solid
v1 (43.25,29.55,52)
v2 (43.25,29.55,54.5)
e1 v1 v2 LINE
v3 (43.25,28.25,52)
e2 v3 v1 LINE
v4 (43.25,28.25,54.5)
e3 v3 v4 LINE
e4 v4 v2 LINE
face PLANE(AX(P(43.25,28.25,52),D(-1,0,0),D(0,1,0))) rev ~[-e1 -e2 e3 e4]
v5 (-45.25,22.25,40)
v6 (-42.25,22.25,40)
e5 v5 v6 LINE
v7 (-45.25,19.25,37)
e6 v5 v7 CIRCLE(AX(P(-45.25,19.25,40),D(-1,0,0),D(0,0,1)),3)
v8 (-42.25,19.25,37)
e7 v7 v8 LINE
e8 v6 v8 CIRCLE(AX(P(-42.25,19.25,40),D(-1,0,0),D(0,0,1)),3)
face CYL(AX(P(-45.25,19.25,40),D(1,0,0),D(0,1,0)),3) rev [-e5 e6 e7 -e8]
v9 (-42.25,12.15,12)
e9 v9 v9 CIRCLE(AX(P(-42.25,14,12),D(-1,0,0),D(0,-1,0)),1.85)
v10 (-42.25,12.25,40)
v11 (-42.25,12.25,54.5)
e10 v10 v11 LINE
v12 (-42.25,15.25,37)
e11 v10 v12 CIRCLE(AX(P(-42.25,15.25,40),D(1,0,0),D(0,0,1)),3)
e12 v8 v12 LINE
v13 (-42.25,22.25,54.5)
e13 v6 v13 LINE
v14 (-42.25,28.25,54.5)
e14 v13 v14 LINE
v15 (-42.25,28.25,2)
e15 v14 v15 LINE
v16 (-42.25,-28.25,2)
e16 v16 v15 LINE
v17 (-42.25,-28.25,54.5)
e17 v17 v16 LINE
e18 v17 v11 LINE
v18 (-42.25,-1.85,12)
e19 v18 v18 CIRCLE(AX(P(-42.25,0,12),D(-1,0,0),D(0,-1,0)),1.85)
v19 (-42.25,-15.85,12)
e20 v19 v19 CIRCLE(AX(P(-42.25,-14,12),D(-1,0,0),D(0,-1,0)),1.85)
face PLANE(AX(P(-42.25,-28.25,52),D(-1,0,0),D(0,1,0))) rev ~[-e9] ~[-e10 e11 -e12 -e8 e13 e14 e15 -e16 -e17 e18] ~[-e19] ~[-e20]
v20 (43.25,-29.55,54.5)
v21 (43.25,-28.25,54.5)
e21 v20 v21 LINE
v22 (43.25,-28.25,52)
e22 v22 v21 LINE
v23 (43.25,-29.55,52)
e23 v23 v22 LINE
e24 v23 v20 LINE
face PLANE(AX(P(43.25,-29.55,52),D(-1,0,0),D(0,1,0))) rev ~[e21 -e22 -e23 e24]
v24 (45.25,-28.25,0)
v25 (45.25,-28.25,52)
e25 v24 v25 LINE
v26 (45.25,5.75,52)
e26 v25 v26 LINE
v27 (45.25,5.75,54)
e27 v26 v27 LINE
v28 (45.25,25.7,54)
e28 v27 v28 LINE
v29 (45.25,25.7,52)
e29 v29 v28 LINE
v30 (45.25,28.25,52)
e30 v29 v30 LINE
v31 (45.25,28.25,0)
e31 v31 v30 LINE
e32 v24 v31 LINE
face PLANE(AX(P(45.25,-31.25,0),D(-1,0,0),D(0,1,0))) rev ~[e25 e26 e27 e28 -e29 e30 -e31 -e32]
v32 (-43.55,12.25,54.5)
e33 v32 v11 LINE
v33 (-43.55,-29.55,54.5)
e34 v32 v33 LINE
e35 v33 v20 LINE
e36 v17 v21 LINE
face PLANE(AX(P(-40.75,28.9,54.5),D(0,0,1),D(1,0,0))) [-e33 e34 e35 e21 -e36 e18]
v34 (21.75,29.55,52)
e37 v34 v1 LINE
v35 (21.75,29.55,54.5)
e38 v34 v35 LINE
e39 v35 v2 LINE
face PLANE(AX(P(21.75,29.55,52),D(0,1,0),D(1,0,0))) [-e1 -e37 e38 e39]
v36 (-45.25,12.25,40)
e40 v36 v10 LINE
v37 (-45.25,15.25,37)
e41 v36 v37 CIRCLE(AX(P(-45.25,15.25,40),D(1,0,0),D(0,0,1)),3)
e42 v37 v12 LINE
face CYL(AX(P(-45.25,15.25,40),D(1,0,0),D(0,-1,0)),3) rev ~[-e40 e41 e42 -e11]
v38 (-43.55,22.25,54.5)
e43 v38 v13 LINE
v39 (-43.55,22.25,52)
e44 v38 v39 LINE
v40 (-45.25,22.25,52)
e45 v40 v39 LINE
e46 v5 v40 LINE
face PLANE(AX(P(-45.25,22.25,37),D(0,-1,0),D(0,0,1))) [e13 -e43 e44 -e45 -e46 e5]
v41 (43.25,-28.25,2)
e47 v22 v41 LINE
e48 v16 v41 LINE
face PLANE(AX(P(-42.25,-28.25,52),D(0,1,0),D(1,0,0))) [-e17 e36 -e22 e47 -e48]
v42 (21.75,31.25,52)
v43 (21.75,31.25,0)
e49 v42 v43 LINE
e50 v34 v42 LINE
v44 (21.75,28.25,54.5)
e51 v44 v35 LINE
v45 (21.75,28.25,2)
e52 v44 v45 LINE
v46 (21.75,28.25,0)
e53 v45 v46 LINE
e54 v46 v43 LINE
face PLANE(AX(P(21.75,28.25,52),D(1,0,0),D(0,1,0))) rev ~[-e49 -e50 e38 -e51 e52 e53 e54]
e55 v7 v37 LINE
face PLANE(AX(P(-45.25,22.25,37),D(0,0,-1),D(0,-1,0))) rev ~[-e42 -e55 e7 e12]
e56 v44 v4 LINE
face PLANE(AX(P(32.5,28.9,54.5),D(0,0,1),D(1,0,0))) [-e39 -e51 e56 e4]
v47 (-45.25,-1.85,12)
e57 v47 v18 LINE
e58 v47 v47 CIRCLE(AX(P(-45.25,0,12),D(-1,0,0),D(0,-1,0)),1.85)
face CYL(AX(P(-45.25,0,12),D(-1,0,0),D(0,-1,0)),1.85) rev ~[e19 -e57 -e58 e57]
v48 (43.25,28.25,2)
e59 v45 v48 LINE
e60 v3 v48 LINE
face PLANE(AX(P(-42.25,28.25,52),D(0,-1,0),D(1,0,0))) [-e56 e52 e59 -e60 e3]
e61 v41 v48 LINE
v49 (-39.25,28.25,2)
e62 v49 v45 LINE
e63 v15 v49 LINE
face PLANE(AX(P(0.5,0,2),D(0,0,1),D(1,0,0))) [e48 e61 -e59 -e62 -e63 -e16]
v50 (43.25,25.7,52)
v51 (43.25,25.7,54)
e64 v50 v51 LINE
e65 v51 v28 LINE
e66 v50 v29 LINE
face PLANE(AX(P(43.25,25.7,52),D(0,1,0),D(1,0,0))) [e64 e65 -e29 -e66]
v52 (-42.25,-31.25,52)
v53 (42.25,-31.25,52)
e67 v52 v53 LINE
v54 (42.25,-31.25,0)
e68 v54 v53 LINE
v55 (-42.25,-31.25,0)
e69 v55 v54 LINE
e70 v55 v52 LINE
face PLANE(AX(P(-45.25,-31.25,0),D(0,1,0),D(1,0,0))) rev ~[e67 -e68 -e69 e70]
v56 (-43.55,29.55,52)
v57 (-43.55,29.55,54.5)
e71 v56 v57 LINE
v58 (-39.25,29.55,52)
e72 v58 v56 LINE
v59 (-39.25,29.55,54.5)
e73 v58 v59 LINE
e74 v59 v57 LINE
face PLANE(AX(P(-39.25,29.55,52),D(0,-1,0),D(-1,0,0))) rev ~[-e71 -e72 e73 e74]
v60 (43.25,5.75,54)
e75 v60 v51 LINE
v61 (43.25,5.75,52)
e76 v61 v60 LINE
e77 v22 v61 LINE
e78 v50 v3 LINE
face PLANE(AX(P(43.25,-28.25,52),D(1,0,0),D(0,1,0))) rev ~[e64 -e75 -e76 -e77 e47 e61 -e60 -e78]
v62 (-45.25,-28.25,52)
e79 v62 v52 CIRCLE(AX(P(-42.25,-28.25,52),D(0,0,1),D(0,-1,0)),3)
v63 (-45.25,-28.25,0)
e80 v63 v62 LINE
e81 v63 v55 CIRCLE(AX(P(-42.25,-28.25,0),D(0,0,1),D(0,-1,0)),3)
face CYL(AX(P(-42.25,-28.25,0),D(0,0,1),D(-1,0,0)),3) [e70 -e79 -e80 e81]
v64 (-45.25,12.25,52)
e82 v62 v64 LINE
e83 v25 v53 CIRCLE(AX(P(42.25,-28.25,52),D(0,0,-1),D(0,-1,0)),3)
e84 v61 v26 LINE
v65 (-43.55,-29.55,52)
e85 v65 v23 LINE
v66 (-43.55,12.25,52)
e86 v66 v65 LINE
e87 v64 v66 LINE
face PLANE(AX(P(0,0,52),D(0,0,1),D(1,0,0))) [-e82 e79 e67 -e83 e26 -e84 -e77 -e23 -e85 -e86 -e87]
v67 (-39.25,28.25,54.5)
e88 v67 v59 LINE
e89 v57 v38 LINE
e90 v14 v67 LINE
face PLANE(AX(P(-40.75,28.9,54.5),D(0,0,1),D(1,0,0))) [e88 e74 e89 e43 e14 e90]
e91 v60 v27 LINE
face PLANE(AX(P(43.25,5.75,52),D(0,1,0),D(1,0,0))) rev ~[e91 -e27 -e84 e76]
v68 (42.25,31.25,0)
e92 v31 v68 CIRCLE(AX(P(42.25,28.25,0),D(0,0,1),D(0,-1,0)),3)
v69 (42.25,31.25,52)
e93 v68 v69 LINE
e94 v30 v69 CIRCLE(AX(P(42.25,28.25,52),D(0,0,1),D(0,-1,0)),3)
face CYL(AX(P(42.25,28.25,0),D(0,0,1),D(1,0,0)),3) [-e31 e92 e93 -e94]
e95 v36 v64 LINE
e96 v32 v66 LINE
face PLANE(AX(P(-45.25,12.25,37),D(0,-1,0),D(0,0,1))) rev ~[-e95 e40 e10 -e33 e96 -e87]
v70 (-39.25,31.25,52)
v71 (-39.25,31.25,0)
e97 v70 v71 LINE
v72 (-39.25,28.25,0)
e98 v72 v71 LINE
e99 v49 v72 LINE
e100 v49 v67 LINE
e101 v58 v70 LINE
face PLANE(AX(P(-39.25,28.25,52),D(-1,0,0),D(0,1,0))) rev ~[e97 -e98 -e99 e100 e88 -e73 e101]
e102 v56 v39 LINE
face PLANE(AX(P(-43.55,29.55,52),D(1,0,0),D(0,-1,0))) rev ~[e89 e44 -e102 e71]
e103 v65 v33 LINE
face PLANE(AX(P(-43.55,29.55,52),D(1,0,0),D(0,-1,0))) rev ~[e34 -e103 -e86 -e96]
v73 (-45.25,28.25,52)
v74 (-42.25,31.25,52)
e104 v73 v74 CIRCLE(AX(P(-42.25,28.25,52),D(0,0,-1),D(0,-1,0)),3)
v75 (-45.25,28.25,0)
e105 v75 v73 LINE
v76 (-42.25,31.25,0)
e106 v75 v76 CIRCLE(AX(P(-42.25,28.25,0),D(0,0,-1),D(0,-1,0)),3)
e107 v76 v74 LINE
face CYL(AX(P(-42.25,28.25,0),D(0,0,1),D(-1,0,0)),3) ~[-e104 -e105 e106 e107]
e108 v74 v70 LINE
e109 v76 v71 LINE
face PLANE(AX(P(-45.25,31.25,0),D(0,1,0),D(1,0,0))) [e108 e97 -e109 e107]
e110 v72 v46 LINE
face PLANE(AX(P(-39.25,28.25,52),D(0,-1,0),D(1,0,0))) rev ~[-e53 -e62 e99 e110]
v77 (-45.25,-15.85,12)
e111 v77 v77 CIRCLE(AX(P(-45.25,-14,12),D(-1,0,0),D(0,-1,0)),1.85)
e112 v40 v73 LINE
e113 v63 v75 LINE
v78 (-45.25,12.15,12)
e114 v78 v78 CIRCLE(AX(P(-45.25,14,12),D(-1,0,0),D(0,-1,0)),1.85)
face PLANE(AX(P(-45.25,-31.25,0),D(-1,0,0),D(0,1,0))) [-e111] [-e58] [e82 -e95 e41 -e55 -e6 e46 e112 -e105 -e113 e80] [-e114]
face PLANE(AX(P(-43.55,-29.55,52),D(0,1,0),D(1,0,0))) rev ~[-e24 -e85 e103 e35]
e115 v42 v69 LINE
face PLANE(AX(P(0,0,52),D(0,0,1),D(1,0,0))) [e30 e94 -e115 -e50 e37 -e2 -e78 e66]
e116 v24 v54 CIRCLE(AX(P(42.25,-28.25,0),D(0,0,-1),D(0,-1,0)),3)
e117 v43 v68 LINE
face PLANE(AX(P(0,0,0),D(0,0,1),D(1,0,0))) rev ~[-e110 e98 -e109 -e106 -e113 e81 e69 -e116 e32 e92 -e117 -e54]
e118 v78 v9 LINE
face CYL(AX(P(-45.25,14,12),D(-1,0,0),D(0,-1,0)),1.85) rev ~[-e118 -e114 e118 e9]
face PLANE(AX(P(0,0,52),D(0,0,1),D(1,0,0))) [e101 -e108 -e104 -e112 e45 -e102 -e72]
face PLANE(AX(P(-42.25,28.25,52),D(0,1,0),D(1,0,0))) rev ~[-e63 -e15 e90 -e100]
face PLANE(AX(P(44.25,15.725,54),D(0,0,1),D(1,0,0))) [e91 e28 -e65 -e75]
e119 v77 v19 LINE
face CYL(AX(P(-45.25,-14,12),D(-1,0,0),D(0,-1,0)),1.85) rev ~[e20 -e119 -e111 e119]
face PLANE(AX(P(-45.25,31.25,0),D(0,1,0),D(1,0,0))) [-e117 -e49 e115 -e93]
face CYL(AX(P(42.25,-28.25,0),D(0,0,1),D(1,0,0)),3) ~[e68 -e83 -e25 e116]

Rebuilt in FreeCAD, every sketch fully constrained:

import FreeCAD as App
import Part
import Sketcher
from FreeCAD import Vector
Q = App.Units.Quantity


def edges_at(feature, points):
    """Names of the edges that pass closest to the given points."""
    edges = feature.Shape.Edges
    near = lambda p: min(range(len(edges)), key=lambda i: edges[i].distToShape(Part.Vertex(*p))[0])
    return sorted({f"Edge{near(p) + 1}" for p in points})

doc = App.newDocument("Part")
body = doc.addObject("PartDesign::Body", "Body")

# Sketch on XY plane
sketch1 = body.newObject("Sketcher::SketchObject", "Sketch")
sketch1.AttachmentSupport = (doc.getObject("XY_Plane"), [""])
sketch1.MapMode = "FlatFace"
sketch1.addGeometry(Part.LineSegment(Vector(-45, 31, 0), Vector(-45, -31, 0)), False)
sketch1.addGeometry(Part.LineSegment(Vector(-45, -31, 0), Vector(45, -31, 0)), False)
sketch1.addGeometry(Part.LineSegment(Vector(45, -31, 0), Vector(45, 31, 0)), False)
sketch1.addGeometry(Part.LineSegment(Vector(45, 31, 0), Vector(-45, 31, 0)), False)
sketch1.addConstraint(Sketcher.Constraint("Coincident", 0, 2, 1, 1))
sketch1.addConstraint(Sketcher.Constraint("Coincident", 1, 2, 2, 1))
sketch1.addConstraint(Sketcher.Constraint("Coincident", 2, 2, 3, 1))
sketch1.addConstraint(Sketcher.Constraint("Coincident", 3, 2, 0, 1))
sketch1.addConstraint(Sketcher.Constraint("Vertical", 0))
sketch1.addConstraint(Sketcher.Constraint("Horizontal", 1))
sketch1.addConstraint(Sketcher.Constraint("Vertical", 2))
sketch1.addConstraint(Sketcher.Constraint("Horizontal", 3))
sketch1.addConstraint(Sketcher.Constraint("Symmetric", 0, 2, 2, 2, -1, 1))
sketch1.addConstraint(Sketcher.Constraint("DistanceX", 1, 1, 1, 2, Q("90.5 mm")))
sketch1.addConstraint(Sketcher.Constraint("DistanceY", 0, 2, 0, 1, Q("62.5 mm")))
pad1 = body.newObject("PartDesign::Pad", "Pad")
pad1.Profile = sketch1
pad1.Length = 52

# Sketch on XY plane
sketch2 = body.newObject("Sketcher::SketchObject", "Sketch001")
sketch2.AttachmentSupport = (doc.getObject("XY_Plane"), [""])
sketch2.MapMode = "FlatFace"
sketch2.AttachmentOffset = App.Placement(Vector(0, 0, 52), App.Rotation())
sketch2.addGeometry(Part.LineSegment(Vector(-42, 28, 0), Vector(-42, -28, 0)), False)
sketch2.addGeometry(Part.LineSegment(Vector(-42, -28, 0), Vector(43, -28, 0)), False)
sketch2.addGeometry(Part.LineSegment(Vector(43, -28, 0), Vector(43, 28, 0)), False)
sketch2.addGeometry(Part.LineSegment(Vector(43, 28, 0), Vector(-42, 28, 0)), False)
sketch2.addConstraint(Sketcher.Constraint("Coincident", 0, 2, 1, 1))
sketch2.addConstraint(Sketcher.Constraint("Coincident", 1, 2, 2, 1))
sketch2.addConstraint(Sketcher.Constraint("Coincident", 2, 2, 3, 1))
sketch2.addConstraint(Sketcher.Constraint("Coincident", 3, 2, 0, 1))
sketch2.addConstraint(Sketcher.Constraint("Vertical", 0))
sketch2.addConstraint(Sketcher.Constraint("Horizontal", 1))
sketch2.addConstraint(Sketcher.Constraint("Vertical", 2))
sketch2.addConstraint(Sketcher.Constraint("Horizontal", 3))
sketch2.addConstraint(Sketcher.Constraint("DistanceX", 1, 1, 1, 2, Q("85.5 mm")))
sketch2.addConstraint(Sketcher.Constraint("DistanceY", 0, 2, 0, 1, Q("56.5 mm")))
sketch2.addConstraint(Sketcher.Constraint("DistanceX", 0, 2, -1, 1, Q("42.25 mm")))
sketch2.addConstraint(Sketcher.Constraint("DistanceY", 0, 2, -1, 1, Q("28.25 mm")))
pocket1 = body.newObject("PartDesign::Pocket", "Pocket")
pocket1.Profile = sketch2
pocket1.Length = 50

# Sketch on XY plane
sketch3 = body.newObject("Sketcher::SketchObject", "Sketch002")
sketch3.AttachmentSupport = (doc.getObject("XY_Plane"), [""])
sketch3.MapMode = "FlatFace"
sketch3.AttachmentOffset = App.Placement(Vector(0, 0, 52), App.Rotation())
sketch3.addGeometry(Part.LineSegment(Vector(-39.2, 31.2, 0), Vector(-39.2, 28.2, 0)), False)
sketch3.addGeometry(Part.LineSegment(Vector(-39.2, 28.2, 0), Vector(21.8, 28.2, 0)), False)
sketch3.addGeometry(Part.LineSegment(Vector(21.8, 28.2, 0), Vector(21.8, 31.2, 0)), False)
sketch3.addGeometry(Part.LineSegment(Vector(21.8, 31.2, 0), Vector(-39.2, 31.2, 0)), False)
sketch3.addConstraint(Sketcher.Constraint("Coincident", 0, 2, 1, 1))
sketch3.addConstraint(Sketcher.Constraint("Coincident", 1, 2, 2, 1))
sketch3.addConstraint(Sketcher.Constraint("Coincident", 2, 2, 3, 1))
sketch3.addConstraint(Sketcher.Constraint("Coincident", 3, 2, 0, 1))
sketch3.addConstraint(Sketcher.Constraint("Vertical", 0))
sketch3.addConstraint(Sketcher.Constraint("Horizontal", 1))
sketch3.addConstraint(Sketcher.Constraint("Vertical", 2))
sketch3.addConstraint(Sketcher.Constraint("Horizontal", 3))
sketch3.addConstraint(Sketcher.Constraint("DistanceX", 1, 1, 1, 2, Q("61 mm")))
sketch3.addConstraint(Sketcher.Constraint("DistanceY", 0, 2, 0, 1, Q("3 mm")))
sketch3.addConstraint(Sketcher.Constraint("DistanceX", 0, 2, -1, 1, Q("39.25 mm")))
sketch3.addConstraint(Sketcher.Constraint("DistanceY", -1, 1, 0, 2, Q("28.25 mm")))
pocket2 = body.newObject("PartDesign::Pocket", "Pocket001")
pocket2.Profile = sketch3
pocket2.Length = 52

# Sketch on XY plane
sketch4 = body.newObject("Sketcher::SketchObject", "Sketch003")
sketch4.AttachmentSupport = (doc.getObject("XY_Plane"), [""])
sketch4.MapMode = "FlatFace"
sketch4.AttachmentOffset = App.Placement(Vector(0, 0, 52), App.Rotation())
sketch4.addGeometry(Part.LineSegment(Vector(-42.2, 28.2, 0), Vector(-39.2, 28.2, 0)), False)
sketch4.addGeometry(Part.LineSegment(Vector(-39.2, 28.2, 0), Vector(-39.2, 29.6, 0)), False)
sketch4.addGeometry(Part.LineSegment(Vector(-39.2, 29.6, 0), Vector(-43.5, 29.6, 0)), False)
sketch4.addGeometry(Part.LineSegment(Vector(-43.5, 29.6, 0), Vector(-43.5, -29.6, 0)), False)
sketch4.addGeometry(Part.LineSegment(Vector(-43.5, -29.6, 0), Vector(43.2, -29.6, 0)), False)
sketch4.addGeometry(Part.LineSegment(Vector(43.2, -29.6, 0), Vector(43.2, -28.2, 0)), False)
sketch4.addGeometry(Part.LineSegment(Vector(43.2, -28.2, 0), Vector(-42.2, -28.2, 0)), False)
sketch4.addGeometry(Part.LineSegment(Vector(-42.2, -28.2, 0), Vector(-42.2, 28.2, 0)), False)
sketch4.addGeometry(Part.LineSegment(Vector(21.8, 29.6, 0), Vector(21.8, 28.2, 0)), False)
sketch4.addGeometry(Part.LineSegment(Vector(21.8, 28.2, 0), Vector(43.2, 28.2, 0)), False)
sketch4.addGeometry(Part.LineSegment(Vector(43.2, 28.2, 0), Vector(43.2, 29.6, 0)), False)
sketch4.addGeometry(Part.LineSegment(Vector(43.2, 29.6, 0), Vector(21.8, 29.6, 0)), False)
sketch4.addConstraint(Sketcher.Constraint("Coincident", 0, 2, 1, 1))
sketch4.addConstraint(Sketcher.Constraint("Coincident", 1, 2, 2, 1))
sketch4.addConstraint(Sketcher.Constraint("Coincident", 2, 2, 3, 1))
sketch4.addConstraint(Sketcher.Constraint("Coincident", 3, 2, 4, 1))
sketch4.addConstraint(Sketcher.Constraint("Coincident", 4, 2, 5, 1))
sketch4.addConstraint(Sketcher.Constraint("Coincident", 5, 2, 6, 1))
sketch4.addConstraint(Sketcher.Constraint("Coincident", 6, 2, 7, 1))
sketch4.addConstraint(Sketcher.Constraint("Coincident", 7, 2, 0, 1))
sketch4.addConstraint(Sketcher.Constraint("Coincident", 8, 2, 9, 1))
sketch4.addConstraint(Sketcher.Constraint("Coincident", 9, 2, 10, 1))
sketch4.addConstraint(Sketcher.Constraint("Coincident", 10, 2, 11, 1))
sketch4.addConstraint(Sketcher.Constraint("Coincident", 11, 2, 8, 1))
sketch4.addConstraint(Sketcher.Constraint("Horizontal", 0))
sketch4.addConstraint(Sketcher.Constraint("Vertical", 1))
sketch4.addConstraint(Sketcher.Constraint("Horizontal", 2))
sketch4.addConstraint(Sketcher.Constraint("Vertical", 3))
sketch4.addConstraint(Sketcher.Constraint("Horizontal", 4))
sketch4.addConstraint(Sketcher.Constraint("Vertical", 5))
sketch4.addConstraint(Sketcher.Constraint("Horizontal", 6))
sketch4.addConstraint(Sketcher.Constraint("Vertical", 7))
sketch4.addConstraint(Sketcher.Constraint("Vertical", 8))
sketch4.addConstraint(Sketcher.Constraint("Horizontal", 9))
sketch4.addConstraint(Sketcher.Constraint("Vertical", 10))
sketch4.addConstraint(Sketcher.Constraint("Horizontal", 11))
sketch4.addConstraint(Sketcher.Constraint("Symmetric", 5, 2, 9, 2, -1))
sketch4.addConstraint(Sketcher.Constraint("Horizontal", 7, 2, 8, 2))
sketch4.addConstraint(Sketcher.Constraint("Horizontal", 2, 2, 10, 2))
sketch4.addConstraint(Sketcher.Constraint("Equal", 1, 5))
sketch4.addConstraint(Sketcher.Constraint("DistanceX", 0, 1, 0, 2, Q("3 mm")))
sketch4.addConstraint(Sketcher.Constraint("DistanceX", 2, 2, 2, 1, Q("4.3 mm")))
sketch4.addConstraint(Sketcher.Constraint("DistanceX", 4, 1, 4, 2, Q("86.8 mm")))
sketch4.addConstraint(Sketcher.Constraint("DistanceX", 9, 1, 9, 2, Q("21.5 mm")))
sketch4.addConstraint(Sketcher.Constraint("DistanceY", 1, 1, 1, 2, Q("1.3 mm")))
sketch4.addConstraint(Sketcher.Constraint("DistanceY", 3, 2, 3, 1, Q("59.1 mm")))
sketch4.addConstraint(Sketcher.Constraint("DistanceX", 0, 2, -1, 1, Q("39.25 mm")))
pad2 = body.newObject("PartDesign::Pad", "Pad001")
pad2.Profile = sketch4
pad2.Length = 2.5

# Sketch on XY plane
sketch5 = body.newObject("Sketcher::SketchObject", "Sketch004")
sketch5.AttachmentSupport = (doc.getObject("XY_Plane"), [""])
sketch5.MapMode = "FlatFace"
sketch5.AttachmentOffset = App.Placement(Vector(0, 0, 52), App.Rotation())
sketch5.addGeometry(Part.LineSegment(Vector(43.2, 25.7, 0), Vector(43.2, 5.8, 0)), False)
sketch5.addGeometry(Part.LineSegment(Vector(43.2, 5.8, 0), Vector(45.2, 5.8, 0)), False)
sketch5.addGeometry(Part.LineSegment(Vector(45.2, 5.8, 0), Vector(45.2, 25.7, 0)), False)
sketch5.addGeometry(Part.LineSegment(Vector(45.2, 25.7, 0), Vector(43.2, 25.7, 0)), False)
sketch5.addConstraint(Sketcher.Constraint("Coincident", 0, 2, 1, 1))
sketch5.addConstraint(Sketcher.Constraint("Coincident", 1, 2, 2, 1))
sketch5.addConstraint(Sketcher.Constraint("Coincident", 2, 2, 3, 1))
sketch5.addConstraint(Sketcher.Constraint("Coincident", 3, 2, 0, 1))
sketch5.addConstraint(Sketcher.Constraint("Vertical", 0))
sketch5.addConstraint(Sketcher.Constraint("Horizontal", 1))
sketch5.addConstraint(Sketcher.Constraint("Vertical", 2))
sketch5.addConstraint(Sketcher.Constraint("Horizontal", 3))
sketch5.addConstraint(Sketcher.Constraint("DistanceX", 1, 1, 1, 2, Q("2 mm")))
sketch5.addConstraint(Sketcher.Constraint("DistanceY", 0, 2, 0, 1, Q("19.95 mm")))
sketch5.addConstraint(Sketcher.Constraint("DistanceY", -1, 1, 2, 2, Q("25.7 mm")))
sketch5.addConstraint(Sketcher.Constraint("DistanceX", -1, 1, 0, 2, Q("43.25 mm")))
pad3 = body.newObject("PartDesign::Pad", "Pad002")
pad3.Profile = sketch5
pad3.Length = 2

# Sketch on XY plane
sketch6 = body.newObject("Sketcher::SketchObject", "Sketch005")
sketch6.AttachmentSupport = (doc.getObject("XY_Plane"), [""])
sketch6.MapMode = "FlatFace"
sketch6.AttachmentOffset = App.Placement(Vector(0, 0, 52), App.Rotation())
sketch6.addGeometry(Part.LineSegment(Vector(43.2, 25.7, 0), Vector(43.2, 5.8, 0)), False)
sketch6.addGeometry(Part.LineSegment(Vector(43.2, 5.8, 0), Vector(45.2, 5.8, 0)), False)
sketch6.addGeometry(Part.LineSegment(Vector(45.2, 5.8, 0), Vector(45.2, 25.7, 0)), False)
sketch6.addGeometry(Part.LineSegment(Vector(45.2, 25.7, 0), Vector(43.2, 25.7, 0)), False)
sketch6.addConstraint(Sketcher.Constraint("Coincident", 0, 2, 1, 1))
sketch6.addConstraint(Sketcher.Constraint("Coincident", 1, 2, 2, 1))
sketch6.addConstraint(Sketcher.Constraint("Coincident", 2, 2, 3, 1))
sketch6.addConstraint(Sketcher.Constraint("Coincident", 3, 2, 0, 1))
sketch6.addConstraint(Sketcher.Constraint("Vertical", 0))
sketch6.addConstraint(Sketcher.Constraint("Horizontal", 1))
sketch6.addConstraint(Sketcher.Constraint("Vertical", 2))
sketch6.addConstraint(Sketcher.Constraint("Horizontal", 3))
sketch6.addConstraint(Sketcher.Constraint("DistanceX", 1, 1, 1, 2, Q("2 mm")))
sketch6.addConstraint(Sketcher.Constraint("DistanceY", 0, 2, 0, 1, Q("19.95 mm")))
sketch6.addConstraint(Sketcher.Constraint("DistanceY", -1, 1, 2, 2, Q("25.7 mm")))
sketch6.addConstraint(Sketcher.Constraint("DistanceX", -1, 1, 0, 2, Q("43.25 mm")))
pad4 = body.newObject("PartDesign::Pad", "Pad003")
pad4.Profile = sketch6
pad4.Length = 2
doc.recompute()

fillet = body.newObject("PartDesign::Fillet", "Fillet")
fillet.Base = (pad4, edges_at(pad4, [
    (45.25, 31.25, 26),
    (45.25, -31.25, 26),
    (-45.25, 31.25, 26),
    (-45.25, -31.25, 26),
]))
fillet.Radius = 3

# Sketch on YZ plane
sketch7 = body.newObject("Sketcher::SketchObject", "Sketch006")
sketch7.AttachmentSupport = (doc.getObject("YZ_Plane"), [""])
sketch7.MapMode = "FlatFace"
sketch7.AttachmentOffset = App.Placement(Vector(0, 0, -45.25), App.Rotation())
sketch7.addGeometry(Part.LineSegment(Vector(22, 55, 0), Vector(22, 37, 0)), False)
sketch7.addGeometry(Part.LineSegment(Vector(22, 37, 0), Vector(12, 37, 0)), False)
sketch7.addGeometry(Part.LineSegment(Vector(12, 37, 0), Vector(12, 55, 0)), False)
sketch7.addGeometry(Part.LineSegment(Vector(12, 55, 0), Vector(22, 55, 0)), False)
sketch7.addConstraint(Sketcher.Constraint("Coincident", 0, 2, 1, 1))
sketch7.addConstraint(Sketcher.Constraint("Coincident", 1, 2, 2, 1))
sketch7.addConstraint(Sketcher.Constraint("Coincident", 2, 2, 3, 1))
sketch7.addConstraint(Sketcher.Constraint("Coincident", 3, 2, 0, 1))
sketch7.addConstraint(Sketcher.Constraint("Vertical", 0))
sketch7.addConstraint(Sketcher.Constraint("Horizontal", 1))
sketch7.addConstraint(Sketcher.Constraint("Vertical", 2))
sketch7.addConstraint(Sketcher.Constraint("Horizontal", 3))
sketch7.addConstraint(Sketcher.Constraint("DistanceX", 1, 2, 1, 1, Q("10 mm")))
sketch7.addConstraint(Sketcher.Constraint("DistanceY", 0, 2, 0, 1, Q("18 mm")))
sketch7.addConstraint(Sketcher.Constraint("DistanceY", -1, 1, 0, 2, Q("37 mm")))
sketch7.addConstraint(Sketcher.Constraint("DistanceX", -1, 1, 0, 2, Q("22.25 mm")))
pocket3 = body.newObject("PartDesign::Pocket", "Pocket002")
pocket3.Profile = sketch7
pocket3.Length = 5
pocket3.Reversed = True
doc.recompute()

fillet2 = body.newObject("PartDesign::Fillet", "Fillet001")
fillet2.Base = (pocket3, edges_at(pocket3, [(-43.75, 22.25, 37), (-43.75, 12.25, 37)]))
fillet2.Radius = 3

# Sketch on YZ plane
sketch8 = body.newObject("Sketcher::SketchObject", "Sketch007")
sketch8.AttachmentSupport = (doc.getObject("YZ_Plane"), [""])
sketch8.MapMode = "FlatFace"
sketch8.AttachmentOffset = App.Placement(Vector(0, 0, -45.25), App.Rotation())
sketch8.addGeometry(Part.Circle(Vector(14, 12, 0), Vector(0, 0, 1), 1.9), False)
sketch8.addGeometry(Part.Circle(Vector(0, 12, 0), Vector(0, 0, 1), 1.9), False)
sketch8.addGeometry(Part.Circle(Vector(-14, 12, 0), Vector(0, 0, 1), 1.9), False)
sketch8.addConstraint(Sketcher.Constraint("Equal", 0, 1))
sketch8.addConstraint(Sketcher.Constraint("Equal", 1, 2))
sketch8.addConstraint(Sketcher.Constraint("Symmetric", 0, 3, 2, 3, -2))
sketch8.addConstraint(Sketcher.Constraint("PointOnObject", 1, 3, -2))
sketch8.addConstraint(Sketcher.Constraint("Horizontal", 0, 3, 1, 3))
sketch8.addConstraint(Sketcher.Constraint("Diameter", 0, Q("3.7 mm")))
sketch8.addConstraint(Sketcher.Constraint("DistanceX", -1, 1, 0, 3, Q("14 mm")))
sketch8.addConstraint(Sketcher.Constraint("DistanceY", -1, 1, 0, 3, Q("12 mm")))
pocket4 = body.newObject("PartDesign::Pocket", "Pocket003")
pocket4.Profile = sketch8
pocket4.Length = 5
pocket4.Reversed = True

doc.recompute()
